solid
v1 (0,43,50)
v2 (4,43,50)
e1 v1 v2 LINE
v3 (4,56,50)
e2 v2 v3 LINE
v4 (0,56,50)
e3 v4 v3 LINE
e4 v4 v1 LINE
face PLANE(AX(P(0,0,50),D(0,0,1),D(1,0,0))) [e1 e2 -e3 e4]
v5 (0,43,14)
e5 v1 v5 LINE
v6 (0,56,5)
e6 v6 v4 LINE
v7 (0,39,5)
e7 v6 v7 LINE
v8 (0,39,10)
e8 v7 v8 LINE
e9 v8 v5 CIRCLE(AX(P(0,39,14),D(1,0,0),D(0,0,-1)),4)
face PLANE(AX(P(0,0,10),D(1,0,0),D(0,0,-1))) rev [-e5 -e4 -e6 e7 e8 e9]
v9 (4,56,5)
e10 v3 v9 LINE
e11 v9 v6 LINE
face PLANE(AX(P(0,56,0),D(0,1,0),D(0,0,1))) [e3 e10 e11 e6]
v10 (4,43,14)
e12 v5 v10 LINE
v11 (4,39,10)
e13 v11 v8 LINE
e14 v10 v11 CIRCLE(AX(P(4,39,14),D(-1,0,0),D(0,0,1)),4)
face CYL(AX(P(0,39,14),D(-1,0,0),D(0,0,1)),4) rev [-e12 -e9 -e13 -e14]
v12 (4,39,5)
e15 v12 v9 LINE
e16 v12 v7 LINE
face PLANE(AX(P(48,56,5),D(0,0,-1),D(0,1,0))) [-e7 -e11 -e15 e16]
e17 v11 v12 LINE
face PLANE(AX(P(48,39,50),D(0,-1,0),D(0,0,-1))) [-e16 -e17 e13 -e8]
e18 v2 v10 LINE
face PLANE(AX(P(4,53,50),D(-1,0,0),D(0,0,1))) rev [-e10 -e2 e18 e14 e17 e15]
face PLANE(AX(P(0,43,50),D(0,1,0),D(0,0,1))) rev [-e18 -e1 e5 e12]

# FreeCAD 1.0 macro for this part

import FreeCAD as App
import Part
import Sketcher
Q = App.Units.Quantity


def edges_at(feature, points):
    """Names of the edges that pass closest to the given points."""
    edges = feature.Shape.Edges
    near = lambda p: min(range(len(edges)), key=lambda i: edges[i].distToShape(Part.Vertex(*p))[0])
    return sorted({f"Edge{near(p) + 1}" for p in points})

doc = App.newDocument("Part")
body = doc.addObject("PartDesign::Body", "Body")

# Sketch on XY plane
sketch1 = doc.addObject("Sketcher::SketchObject", "Sketch")
body.addObject(sketch1)
sketch1.AttachmentSupport = (doc.XY_Plane, [""])
sketch1.MapMode = "FlatFace"
sketch1.addGeometry([
    Part.LineSegment(App.Vector(0, 53, 0), App.Vector(0, 0, 0)),
    Part.LineSegment(App.Vector(0, 0, 0), App.Vector(48, 0, 0)),
    Part.LineSegment(App.Vector(48, 0, 0), App.Vector(48, 53, 0)),
    Part.LineSegment(App.Vector(48, 53, 0), App.Vector(0, 53, 0)),
], False)
sketch1.addConstraint([
    Sketcher.Constraint("Coincident", 0, 2, 1, 1),
    Sketcher.Constraint("Coincident", 1, 2, 2, 1),
    Sketcher.Constraint("Coincident", 2, 2, 3, 1),
    Sketcher.Constraint("Coincident", 3, 2, 0, 1),
    Sketcher.Constraint("Vertical", 0),
    Sketcher.Constraint("Horizontal", 1),
    Sketcher.Constraint("Vertical", 2),
    Sketcher.Constraint("Horizontal", 3),
    Sketcher.Constraint("Coincident", 0, 2, -1, 1),
    Sketcher.Constraint("DistanceX", 1, 1, 1, 2, Q("48 mm")),
    Sketcher.Constraint("DistanceY", 0, 2, 0, 1, Q("53 mm")),
])
pad1 = doc.addObject("PartDesign::Pad", "Pad")
body.addObject(pad1)
pad1.Profile = sketch1
pad1.Length = 10

# Sketch on XY plane
sketch2 = doc.addObject("Sketcher::SketchObject", "Sketch001")
body.addObject(sketch2)
sketch2.AttachmentSupport = (doc.XY_Plane, [""])
sketch2.MapMode = "FlatFace"
sketch2.addGeometry([
    Part.LineSegment(App.Vector(48, 0, 0), App.Vector(48, -6, 0)),
    Part.LineSegment(App.Vector(48, -6, 0), App.Vector(0, -6, 0)),
    Part.LineSegment(App.Vector(0, -6, 0), App.Vector(0, 0, 0)),
    Part.LineSegment(App.Vector(0, 0, 0), App.Vector(48, 0, 0)),
], False)
sketch2.addConstraint([
    Sketcher.Constraint("Coincident", 0, 2, 1, 1),
    Sketcher.Constraint("Coincident", 1, 2, 2, 1),
    Sketcher.Constraint("Coincident", 2, 2, 3, 1),
    Sketcher.Constraint("Coincident", 3, 2, 0, 1),
    Sketcher.Constraint("Vertical", 0),
    Sketcher.Constraint("Horizontal", 1),
    Sketcher.Constraint("Vertical", 2),
    Sketcher.Constraint("Horizontal", 3),
    Sketcher.Constraint("Coincident", 2, 2, -1, 1),
    Sketcher.Constraint("DistanceX", 1, 2, 1, 1, Q("48 mm")),
    Sketcher.Constraint("DistanceY", 0, 2, 0, 1, Q("5.616325 mm")),
])
pad2 = doc.addObject("PartDesign::Pad", "Pad001")
body.addObject(pad2)
pad2.Profile = sketch2
pad2.Length = 33.191788

# Sketch on XY plane
sketch3 = doc.addObject("Sketcher::SketchObject", "Sketch002")
body.addObject(sketch3)
sketch3.AttachmentSupport = (doc.XY_Plane, [""])
sketch3.MapMode = "FlatFace"
sketch3.AttachmentOffset = App.Placement(App.Vector(0, 0, 10), App.Rotation())
sketch3.addGeometry([
    Part.LineSegment(App.Vector(0, 53, 0), App.Vector(0, 43, 0)),  # 0
    Part.LineSegment(App.Vector(0, 43, 0), App.Vector(4, 43, 0)),  # 1
    Part.LineSegment(App.Vector(4, 43, 0), App.Vector(4, 53, 0)),  # 2
    Part.LineSegment(App.Vector(4, 53, 0), App.Vector(0, 53, 0)),  # 3
    Part.LineSegment(App.Vector(44, 53, 0), App.Vector(44, 43, 0)),  # 4
    Part.LineSegment(App.Vector(44, 43, 0), App.Vector(48, 43, 0)),  # 5
    Part.LineSegment(App.Vector(48, 43, 0), App.Vector(48, 53, 0)),  # 6
    Part.LineSegment(App.Vector(48, 53, 0), App.Vector(44, 53, 0)),  # 7
], False)
sketch3.addConstraint([
    Sketcher.Constraint("Coincident", 0, 2, 1, 1),
    Sketcher.Constraint("Coincident", 1, 2, 2, 1),
    Sketcher.Constraint("Coincident", 2, 2, 3, 1),
    Sketcher.Constraint("Coincident", 3, 2, 0, 1),
    Sketcher.Constraint("Coincident", 4, 2, 5, 1),
    Sketcher.Constraint("Coincident", 5, 2, 6, 1),
    Sketcher.Constraint("Coincident", 6, 2, 7, 1),
    Sketcher.Constraint("Coincident", 7, 2, 4, 1),
    Sketcher.Constraint("Vertical", 0),
    Sketcher.Constraint("Horizontal", 1),
    Sketcher.Constraint("Vertical", 2),
    Sketcher.Constraint("Horizontal", 3),
    Sketcher.Constraint("Vertical", 4),
    Sketcher.Constraint("Horizontal", 5),
    Sketcher.Constraint("Vertical", 6),
    Sketcher.Constraint("Horizontal", 7),
    Sketcher.Constraint("PointOnObject", 0, 2, -2),
    Sketcher.Constraint("Horizontal", 1, 2, 4, 2),
    Sketcher.Constraint("Horizontal", 3, 2, 6, 2),
    Sketcher.Constraint("Equal", 3, 5),
    Sketcher.Constraint("DistanceX", 1, 1, 1, 2, Q("4 mm")),
    Sketcher.Constraint("DistanceY", 0, 2, 0, 1, Q("10 mm")),
    Sketcher.Constraint("DistanceY", -1, 1, 0, 2, Q("43 mm")),
    Sketcher.Constraint("DistanceX", -1, 1, 4, 2, Q("44 mm")),
])
pad3 = doc.addObject("PartDesign::Pad", "Pad002")
body.addObject(pad3)
pad3.Profile = sketch3
pad3.Length = 40

# Sketch on XY plane
sketch4 = doc.addObject("Sketcher::SketchObject", "Sketch003")
body.addObject(sketch4)
sketch4.AttachmentSupport = (doc.XY_Plane, [""])
sketch4.MapMode = "FlatFace"
sketch4.AttachmentOffset = App.Placement(App.Vector(0, 0, 10), App.Rotation())
sketch4.addGeometry([
    Part.LineSegment(App.Vector(0, 11, 0), App.Vector(0, 0, 0)),
    Part.LineSegment(App.Vector(0, 0, 0), App.Vector(48, 0, 0)),
    Part.LineSegment(App.Vector(48, 0, 0), App.Vector(48, 11, 0)),
    Part.LineSegment(App.Vector(48, 11, 0), App.Vector(0, 11, 0)),
], False)
sketch4.addConstraint([
    Sketcher.Constraint("Coincident", 0, 2, 1, 1),
    Sketcher.Constraint("Coincident", 1, 2, 2, 1),
    Sketcher.Constraint("Coincident", 2, 2, 3, 1),
    Sketcher.Constraint("Coincident", 3, 2, 0, 1),
    Sketcher.Constraint("Vertical", 0),
    Sketcher.Constraint("Horizontal", 1),
    Sketcher.Constraint("Vertical", 2),
    Sketcher.Constraint("Horizontal", 3),
    Sketcher.Constraint("Coincident", 0, 2, -1, 1),
    Sketcher.Constraint("DistanceX", 1, 1, 1, 2, Q("48 mm")),
    Sketcher.Constraint("DistanceY", 0, 2, 0, 1, Q("10.860938 mm")),
])
pad4 = doc.addObject("PartDesign::Pad", "Pad003")
body.addObject(pad4)
pad4.Profile = sketch4
pad4.Length = 23.191788

# Sketch on XZ plane
sketch5 = doc.addObject("Sketcher::SketchObject", "Sketch004")
body.addObject(sketch5)
sketch5.AttachmentSupport = (doc.XZ_Plane, [""])
sketch5.MapMode = "FlatFace"
sketch5.AttachmentOffset = App.Placement(App.Vector(0, 0, 5.616325), App.Rotation())
sketch5.addGeometry([
    Part.LineSegment(App.Vector(0, 33, 0), App.Vector(0, 28, 0)),
    Part.LineSegment(App.Vector(0, 28, 0), App.Vector(48, 28, 0)),
    Part.LineSegment(App.Vector(48, 28, 0), App.Vector(48, 33, 0)),
    Part.LineSegment(App.Vector(48, 33, 0), App.Vector(0, 33, 0)),
], False)
sketch5.addConstraint([
    Sketcher.Constraint("Coincident", 0, 2, 1, 1),
    Sketcher.Constraint("Coincident", 1, 2, 2, 1),
    Sketcher.Constraint("Coincident", 2, 2, 3, 1),
    Sketcher.Constraint("Coincident", 3, 2, 0, 1),
    Sketcher.Constraint("Vertical", 0),
    Sketcher.Constraint("Horizontal", 1),
    Sketcher.Constraint("Vertical", 2),
    Sketcher.Constraint("Horizontal", 3),
    Sketcher.Constraint("PointOnObject", 0, 2, -2),
    Sketcher.Constraint("DistanceX", 1, 1, 1, 2, Q("48 mm")),
    Sketcher.Constraint("DistanceY", 0, 2, 0, 1, Q("5 mm")),
    Sketcher.Constraint("DistanceY", -1, 1, 0, 2, Q("28.191788 mm")),
])
pad5 = doc.addObject("PartDesign::Pad", "Pad004")
body.addObject(pad5)
pad5.Profile = sketch5
pad5.Length = 42.3

# Sketch on YZ plane
sketch6 = doc.addObject("Sketcher::SketchObject", "Sketch005")
body.addObject(sketch6)
sketch6.AttachmentSupport = (doc.YZ_Plane, [""])
sketch6.MapMode = "FlatFace"
sketch6.addGeometry([
    Part.LineSegment(App.Vector(11, -13, 0), App.Vector(-6, -13, 0)),
    Part.LineSegment(App.Vector(-6, -13, 0), App.Vector(-6, 0, 0)),
    Part.LineSegment(App.Vector(-6, 0, 0), App.Vector(11, 0, 0)),
    Part.LineSegment(App.Vector(11, 0, 0), App.Vector(11, -13, 0)),
], False)
sketch6.addConstraint([
    Sketcher.Constraint("Coincident", 0, 2, 1, 1),
    Sketcher.Constraint("Coincident", 1, 2, 2, 1),
    Sketcher.Constraint("Coincident", 2, 2, 3, 1),
    Sketcher.Constraint("Coincident", 3, 2, 0, 1),
    Sketcher.Constraint("Horizontal", 0),
    Sketcher.Constraint("Vertical", 1),
    Sketcher.Constraint("Horizontal", 2),
    Sketcher.Constraint("Vertical", 3),
    Sketcher.Constraint("PointOnObject", 1, 2, -1),
    Sketcher.Constraint("DistanceX", 0, 2, 0, 1, Q("16.477263 mm")),
    Sketcher.Constraint("DistanceY", 1, 1, 1, 2, Q("12.808212 mm")),
    Sketcher.Constraint("DistanceX", 0, 2, -1, 1, Q("5.616325 mm")),
])
pad6 = doc.addObject("PartDesign::Pad", "Pad005")
body.addObject(pad6)
pad6.Profile = sketch6
pad6.Length = 48

# Sketch on XY plane
sketch7 = doc.addObject("Sketcher::SketchObject", "Sketch006")
body.addObject(sketch7)
sketch7.AttachmentSupport = (doc.XY_Plane, [""])
sketch7.MapMode = "FlatFace"
sketch7.AttachmentOffset = App.Placement(App.Vector(0, 0, 28.191788), App.Rotation())
sketch7.addGeometry(Part.Circle(App.Vector(24, -27, 0), App.Vector(0, 0, 1), 12), False)
sketch7.addConstraint([
    Sketcher.Constraint("Diameter", 0, Q("23 mm")),
    Sketcher.Constraint("DistanceX", -1, 1, 0, 3, Q("24 mm")),
    Sketcher.Constraint("DistanceY", 0, 3, -1, 1, Q("26.616325 mm")),
])
pocket1 = doc.addObject("PartDesign::Pocket", "Pocket")
body.addObject(pocket1)
pocket1.Profile = sketch7
pocket1.Type = "UpToFirst"
pocket1.Reversed = True

# Sketch on XY plane
sketch8 = doc.addObject("Sketcher::SketchObject", "Sketch007")
body.addObject(sketch8)
sketch8.AttachmentSupport = (doc.XY_Plane, [""])
sketch8.MapMode = "FlatFace"
sketch8.AttachmentOffset = App.Placement(App.Vector(0, 0, 28.191788), App.Rotation())
sketch8.addGeometry(Part.Circle(App.Vector(39.5, -11.1, 0), App.Vector(0, 0, 1), 2), False)
sketch8.addConstraint([
    Sketcher.Constraint("Diameter", 0, Q("4 mm")),
    Sketcher.Constraint("DistanceX", -1, 1, 0, 3, Q("39.5 mm")),
    Sketcher.Constraint("DistanceY", 0, 3, -1, 1, Q("11.116325 mm")),
])
pocket2 = doc.addObject("PartDesign::Pocket", "Pocket001")
body.addObject(pocket2)
pocket2.Profile = sketch8
pocket2.Type = "UpToFirst"
pocket2.Reversed = True

# Sketch on XY plane
sketch9 = doc.addObject("Sketcher::SketchObject", "Sketch008")
body.addObject(sketch9)
sketch9.AttachmentSupport = (doc.XY_Plane, [""])
sketch9.MapMode = "FlatFace"
sketch9.AttachmentOffset = App.Placement(App.Vector(0, 0, 28.191788), App.Rotation())
sketch9.addGeometry(Part.Circle(App.Vector(39.5, -42.1, 0), App.Vector(0, 0, 1), 2), False)
sketch9.addConstraint([
    Sketcher.Constraint("Diameter", 0, Q("4 mm")),
    Sketcher.Constraint("DistanceX", -1, 1, 0, 3, Q("39.5 mm")),
    Sketcher.Constraint("DistanceY", 0, 3, -1, 1, Q("42.116325 mm")),
])
pocket3 = doc.addObject("PartDesign::Pocket", "Pocket002")
body.addObject(pocket3)
pocket3.Profile = sketch9
pocket3.Type = "UpToFirst"
pocket3.Reversed = True

# Sketch on XY plane
sketch10 = doc.addObject("Sketcher::SketchObject", "Sketch009")
body.addObject(sketch10)
sketch10.AttachmentSupport = (doc.XY_Plane, [""])
sketch10.MapMode = "FlatFace"
sketch10.AttachmentOffset = App.Placement(App.Vector(0, 0, 28.191788), App.Rotation())
sketch10.addGeometry(Part.Circle(App.Vector(8.5, -11.1, 0), App.Vector(0, 0, 1), 2), False)
sketch10.addConstraint([
    Sketcher.Constraint("Diameter", 0, Q("4 mm")),
    Sketcher.Constraint("DistanceX", -1, 1, 0, 3, Q("8.5 mm")),
    Sketcher.Constraint("DistanceY", 0, 3, -1, 1, Q("11.116325 mm")),
])
pocket4 = doc.addObject("PartDesign::Pocket", "Pocket003")
body.addObject(pocket4)
pocket4.Profile = sketch10
pocket4.Type = "UpToFirst"
pocket4.Reversed = True

# Sketch on XY plane
sketch11 = doc.addObject("Sketcher::SketchObject", "Sketch010")
body.addObject(sketch11)
sketch11.AttachmentSupport = (doc.XY_Plane, [""])
sketch11.MapMode = "FlatFace"
sketch11.AttachmentOffset = App.Placement(App.Vector(0, 0, 28.191788), App.Rotation())
sketch11.addGeometry(Part.Circle(App.Vector(8.5, -42.1, 0), App.Vector(0, 0, 1), 2), False)
sketch11.addConstraint([
    Sketcher.Constraint("Diameter", 0, Q("4 mm")),
    Sketcher.Constraint("DistanceX", -1, 1, 0, 3, Q("8.5 mm")),
    Sketcher.Constraint("DistanceY", 0, 3, -1, 1, Q("42.116325 mm")),
])
pocket5 = doc.addObject("PartDesign::Pocket", "Pocket004")
body.addObject(pocket5)
pocket5.Profile = sketch11
pocket5.Type = "UpToFirst"
pocket5.Reversed = True
doc.recompute()

fillet = doc.addObject("PartDesign::Fillet", "Fillet")
body.addObject(fillet)
fillet.Base = (pocket5, edges_at(pocket5, [(24, 10.861, 0)]))
fillet.Radius = 10
doc.recompute()

fillet2 = doc.addObject("PartDesign::Fillet", "Fillet001")
body.addObject(fillet2)
fillet2.Base = (fillet, edges_at(fillet, [(2, 43, 10), (46, 43, 10)]))
fillet2.Radius = 4

# Sketch on YZ plane
sketch12 = doc.addObject("Sketcher::SketchObject", "Sketch011")
body.addObject(sketch12)
sketch12.AttachmentSupport = (doc.YZ_Plane, [""])
sketch12.MapMode = "FlatFace"
sketch12.AttachmentOffset = App.Placement(App.Vector(0, 0, 48), App.Rotation())
sketch12.addGeometry([
    Part.LineSegment(App.Vector(11, -13, 0), App.Vector(-6, -13, 0)),
    Part.LineSegment(App.Vector(-6, -13, 0), App.Vector(-6, -18, 0)),
    Part.LineSegment(App.Vector(-6, -18, 0), App.Vector(11, -18, 0)),
    Part.LineSegment(App.Vector(11, -18, 0), App.Vector(11, -13, 0)),
], False)
sketch12.addConstraint([
    Sketcher.Constraint("Coincident", 0, 2, 1, 1),
    Sketcher.Constraint("Coincident", 1, 2, 2, 1),
    Sketcher.Constraint("Coincident", 2, 2, 3, 1),
    Sketcher.Constraint("Coincident", 3, 2, 0, 1),
    Sketcher.Constraint("Horizontal", 0),
    Sketcher.Constraint("Vertical", 1),
    Sketcher.Constraint("Horizontal", 2),
    Sketcher.Constraint("Vertical", 3),
    Sketcher.Constraint("DistanceY", 1, 2, 1, 1, Q("5 mm")),
    Sketcher.Constraint("DistanceX", 0, 2, 0, 1, Q("16.477263 mm")),
    Sketcher.Constraint("DistanceX", 0, 2, -1, 1, Q("5.616325 mm")),
    Sketcher.Constraint("DistanceY", 0, 2, -1, 1, Q("12.808212 mm")),
])
pad7 = doc.addObject("PartDesign::Pad", "Pad006")
body.addObject(pad7)
pad7.Profile = sketch12
pad7.Length = 48
pad7.Reversed = True

# Sketch on XY plane
sketch13 = doc.addObject("Sketcher::SketchObject", "Sketch012")
body.addObject(sketch13)
sketch13.AttachmentSupport = (doc.XY_Plane, [""])
sketch13.MapMode = "FlatFace"
sketch13.AttachmentOffset = App.Placement(App.Vector(0, 0, 10), App.Rotation())
sketch13.addGeometry([
    Part.LineSegment(App.Vector(12.4, 37, 0), App.Vector(9, 39, 0)),  # 0
    Part.LineSegment(App.Vector(9, 39, 0), App.Vector(5.6, 37, 0)),  # 1
    Part.LineSegment(App.Vector(5.6, 37, 0), App.Vector(5.6, 33, 0)),  # 2
    Part.LineSegment(App.Vector(5.6, 33, 0), App.Vector(9, 31, 0)),  # 3
    Part.LineSegment(App.Vector(9, 31, 0), App.Vector(12.4, 33, 0)),  # 4
    Part.LineSegment(App.Vector(12.4, 33, 0), App.Vector(12.4, 37, 0)),  # 5
    Part.LineSegment(App.Vector(35.6, 37, 0), App.Vector(35.6, 33, 0)),  # 6
    Part.LineSegment(App.Vector(35.6, 33, 0), App.Vector(39, 31, 0)),  # 7
    Part.LineSegment(App.Vector(39, 31, 0), App.Vector(42.4, 33, 0)),  # 8
    Part.LineSegment(App.Vector(42.4, 33, 0), App.Vector(42.4, 37, 0)),  # 9
    Part.LineSegment(App.Vector(42.4, 37, 0), App.Vector(39, 39, 0)),  # 10
    Part.LineSegment(App.Vector(39, 39, 0), App.Vector(35.6, 37, 0)),  # 11
], False)
sketch13.addConstraint([
    Sketcher.Constraint("Coincident", 0, 2, 1, 1),
    Sketcher.Constraint("Coincident", 1, 2, 2, 1),
    Sketcher.Constraint("Coincident", 2, 2, 3, 1),
    Sketcher.Constraint("Coincident", 3, 2, 4, 1),
    Sketcher.Constraint("Coincident", 4, 2, 5, 1),
    Sketcher.Constraint("Coincident", 5, 2, 0, 1),
    Sketcher.Constraint("Coincident", 6, 2, 7, 1),
    Sketcher.Constraint("Coincident", 7, 2, 8, 1),
    Sketcher.Constraint("Coincident", 8, 2, 9, 1),
    Sketcher.Constraint("Coincident", 9, 2, 10, 1),
    Sketcher.Constraint("Coincident", 10, 2, 11, 1),
    Sketcher.Constraint("Coincident", 11, 2, 6, 1),
    Sketcher.Constraint("Vertical", 2),
    Sketcher.Constraint("Vertical", 5),
    Sketcher.Constraint("Vertical", 6),
    Sketcher.Constraint("Vertical", 9),
    Sketcher.Constraint("Parallel", 0, 3),
    Sketcher.Constraint("Parallel", 1, 4),
    Sketcher.Constraint("Parallel", 3, 7),
    Sketcher.Constraint("Parallel", 4, 8),
    Sketcher.Constraint("Parallel", 7, 10),
    Sketcher.Constraint("Parallel", 8, 11),
    Sketcher.Constraint("Horizontal", 2, 2, 4, 2),
    Sketcher.Constraint("Horizontal", 1, 2, 5, 2),
    Sketcher.Constraint("Horizontal", 4, 2, 6, 2),
    Sketcher.Constraint("Horizontal", 3, 2, 7, 2),
    Sketcher.Constraint("Horizontal", 6, 2, 8, 2),
    Sketcher.Constraint("Horizontal", 5, 2, 9, 2),
    Sketcher.Constraint("Horizontal", 0, 2, 10, 2),
    Sketcher.Constraint("Vertical", 0, 2, 3, 2),
    Sketcher.Constraint("Angle", 0, Q("150 deg")),
    Sketcher.Constraint("DistanceX", -1, 1, 0, 2, Q("9 mm")),
    Sketcher.Constraint("DistanceX", -1, 1, 7, 2, Q("39 mm")),
    Sketcher.Constraint("DistanceX", -1, 1, 1, 2, Q("5.571 mm")),
    Sketcher.Constraint("DistanceY", 2, 2, 2, 1, Q("3.959468 mm")),
    Sketcher.Constraint("DistanceY", -1, 1, 0, 2, Q("38.959468 mm")),
])
pocket6 = doc.addObject("PartDesign::Pocket", "Pocket005")
body.addObject(pocket6)
pocket6.Profile = sketch13
pocket6.Length = 6

# Sketch on XY plane
sketch14 = doc.addObject("Sketcher::SketchObject", "Sketch013")
body.addObject(sketch14)
sketch14.AttachmentSupport = (doc.XY_Plane, [""])
sketch14.MapMode = "FlatFace"
sketch14.AttachmentOffset = App.Placement(App.Vector(0, 0, 4), App.Rotation())
sketch14.addGeometry([
    Part.Circle(App.Vector(9, 35, 0), App.Vector(0, 0, 1), 1.9),
    Part.Circle(App.Vector(39, 35, 0), App.Vector(0, 0, 1), 1.9),
], False)
sketch14.addConstraint([
    Sketcher.Constraint("Equal", 0, 1),
    Sketcher.Constraint("Horizontal", 0, 3, 1, 3),
    Sketcher.Constraint("DistanceX", -1, 1, 0, 3, Q("9 mm")),
    Sketcher.Constraint("DistanceY", -1, 1, 0, 3, Q("35 mm")),
    Sketcher.Constraint("DistanceX", -1, 1, 1, 3, Q("39 mm")),
    Sketcher.Constraint("Diameter", 0, Q("3.8608 mm")),
])
pocket7 = doc.addObject("PartDesign::Pocket", "Pocket006")
body.addObject(pocket7)
pocket7.Profile = sketch14
pocket7.Length = 6

# Sketch on XZ plane
sketch15 = doc.addObject("Sketcher::SketchObject", "Sketch014")
body.addObject(sketch15)
sketch15.AttachmentSupport = (doc.XZ_Plane, [""])
sketch15.MapMode = "FlatFace"
sketch15.AttachmentOffset = App.Placement(App.Vector(0, 0, -53), App.Rotation())
sketch15.addGeometry([
    Part.LineSegment(App.Vector(0, 0, 0), App.Vector(0, 50, 0)),  # 0
    Part.LineSegment(App.Vector(0, 50, 0), App.Vector(4, 50, 0)),  # 1
    Part.LineSegment(App.Vector(4, 50, 0), App.Vector(4, 10, 0)),  # 2
    Part.LineSegment(App.Vector(4, 10, 0), App.Vector(44, 10, 0)),  # 3
    Part.LineSegment(App.Vector(44, 10, 0), App.Vector(44, 50, 0)),  # 4
    Part.LineSegment(App.Vector(44, 50, 0), App.Vector(48, 50, 0)),  # 5
    Part.LineSegment(App.Vector(48, 50, 0), App.Vector(48, 0, 0)),  # 6
    Part.LineSegment(App.Vector(48, 0, 0), App.Vector(0, 0, 0)),  # 7
], False)
sketch15.addConstraint([
    Sketcher.Constraint("Coincident", 0, 2, 1, 1),
    Sketcher.Constraint("Coincident", 1, 2, 2, 1),
    Sketcher.Constraint("Coincident", 2, 2, 3, 1),
    Sketcher.Constraint("Coincident", 3, 2, 4, 1),
    Sketcher.Constraint("Coincident", 4, 2, 5, 1),
    Sketcher.Constraint("Coincident", 5, 2, 6, 1),
    Sketcher.Constraint("Coincident", 6, 2, 7, 1),
    Sketcher.Constraint("Coincident", 7, 2, 0, 1),
    Sketcher.Constraint("Vertical", 0),
    Sketcher.Constraint("Horizontal", 1),
    Sketcher.Constraint("Vertical", 2),
    Sketcher.Constraint("Horizontal", 3),
    Sketcher.Constraint("Vertical", 4),
    Sketcher.Constraint("Horizontal", 5),
    Sketcher.Constraint("Vertical", 6),
    Sketcher.Constraint("Horizontal", 7),
    Sketcher.Constraint("Coincident", 7, 2, -1, 1),
    Sketcher.Constraint("Horizontal", 1, 2, 4, 2),
    Sketcher.Constraint("Equal", 1, 5),
    Sketcher.Constraint("Equal", 3, 2),
    Sketcher.Constraint("DistanceX", 1, 1, 1, 2, Q("4 mm")),
    Sketcher.Constraint("DistanceX", 3, 1, 3, 2, Q("40 mm")),
    Sketcher.Constraint("DistanceY", 0, 1, 0, 2, Q("50 mm")),
])
pad8 = doc.addObject("PartDesign::Pad", "Pad007")
body.addObject(pad8)
pad8.Profile = sketch15
pad8.Length = 3
pad8.Reversed = True

# Sketch on YZ plane
sketch16 = doc.addObject("Sketcher::SketchObject", "Sketch015")
body.addObject(sketch16)
sketch16.AttachmentSupport = (doc.YZ_Plane, [""])
sketch16.MapMode = "FlatFace"
sketch16.addGeometry([
    Part.LineSegment(App.Vector(85, -52, 0), App.Vector(-59, -52, 0)),  # 0
    Part.LineSegment(App.Vector(-59, -52, 0), App.Vector(-59, 95, 0)),  # 1
    Part.LineSegment(App.Vector(-59, 95, 0), App.Vector(85, 95, 0)),  # 2
    Part.LineSegment(App.Vector(85, 95, 0), App.Vector(85, -52, 0)),  # 3
    Part.LineSegment(App.Vector(39, 50, 0), App.Vector(39, 5, 0)),  # 4
    Part.LineSegment(App.Vector(39, 5, 0), App.Vector(56, 5, 0)),  # 5
    Part.LineSegment(App.Vector(56, 5, 0), App.Vector(56, 50, 0)),  # 6
    Part.LineSegment(App.Vector(56, 50, 0), App.Vector(39, 50, 0)),  # 7
], False)
sketch16.addConstraint([
    Sketcher.Constraint("Coincident", 0, 2, 1, 1),
    Sketcher.Constraint("Coincident", 1, 2, 2, 1),
    Sketcher.Constraint("Coincident", 2, 2, 3, 1),
    Sketcher.Constraint("Coincident", 3, 2, 0, 1),
    Sketcher.Constraint("Coincident", 4, 2, 5, 1),
    Sketcher.Constraint("Coincident", 5, 2, 6, 1),
    Sketcher.Constraint("Coincident", 6, 2, 7, 1),
    Sketcher.Constraint("Coincident", 7, 2, 4, 1),
    Sketcher.Constraint("Horizontal", 0),
    Sketcher.Constraint("Vertical", 1),
    Sketcher.Constraint("Horizontal", 2),
    Sketcher.Constraint("Vertical", 3),
    Sketcher.Constraint("Vertical", 4),
    Sketcher.Constraint("Horizontal", 5),
    Sketcher.Constraint("Vertical", 6),
    Sketcher.Constraint("Horizontal", 7),
    Sketcher.Constraint("DistanceX", 5, 1, 5, 2, Q("17 mm")),
    Sketcher.Constraint("DistanceY", 4, 2, 4, 1, Q("45 mm")),
    Sketcher.Constraint("DistanceX", -1, 1, 4, 2, Q("39 mm")),
    Sketcher.Constraint("DistanceY", -1, 1, 4, 2, Q("5 mm")),
    Sketcher.Constraint("DistanceY", 1, 1, 1, 2, Q("146.253561 mm")),
    Sketcher.Constraint("DistanceX", 0, 2, 0, 1, Q("143.633383 mm")),
    Sketcher.Constraint("DistanceX", 0, 2, -1, 1, Q("59.080628 mm")),
    Sketcher.Constraint("DistanceY", 0, 2, -1, 1, Q("51.552333 mm")),
])
pocket8 = doc.addObject("PartDesign::Pocket", "Pocket007")
body.addObject(pocket8)
pocket8.Profile = sketch16
pocket8.Type = "ThroughAll"
pocket8.Reversed = True

# Sketch on YZ plane
sketch17 = doc.addObject("Sketcher::SketchObject", "Sketch016")
body.addObject(sketch17)
sketch17.AttachmentSupport = (doc.YZ_Plane, [""])
sketch17.MapMode = "FlatFace"
sketch17.AttachmentOffset = App.Placement(App.Vector(0, 0, 48), App.Rotation())
sketch17.addGeometry([
    Part.LineSegment(App.Vector(63, 66, 0), App.Vector(25, 66, 0)),
    Part.LineSegment(App.Vector(25, 66, 0), App.Vector(25, -2, 0)),
    Part.LineSegment(App.Vector(25, -2, 0), App.Vector(63, -2, 0)),
    Part.LineSegment(App.Vector(63, -2, 0), App.Vector(63, 66, 0)),
], False)
sketch17.addConstraint([
    Sketcher.Constraint("Coincident", 0, 2, 1, 1),
    Sketcher.Constraint("Coincident", 1, 2, 2, 1),
    Sketcher.Constraint("Coincident", 2, 2, 3, 1),
    Sketcher.Constraint("Coincident", 3, 2, 0, 1),
    Sketcher.Constraint("Horizontal", 0),
    Sketcher.Constraint("Vertical", 1),
    Sketcher.Constraint("Horizontal", 2),
    Sketcher.Constraint("Vertical", 3),
    Sketcher.Constraint("DistanceX", 0, 2, 0, 1, Q("38.248169 mm")),
    Sketcher.Constraint("DistanceY", 1, 2, 1, 1, Q("68.343124 mm")),
    Sketcher.Constraint("DistanceX", -1, 1, 0, 2, Q("24.61604 mm")),
    Sketcher.Constraint("DistanceY", 1, 2, -1, 1, Q("2.185179 mm")),
])
pocket9 = doc.addObject("PartDesign::Pocket", "Pocket008")
body.addObject(pocket9)
pocket9.Profile = sketch17
pocket9.Length = 44

doc.recompute()
